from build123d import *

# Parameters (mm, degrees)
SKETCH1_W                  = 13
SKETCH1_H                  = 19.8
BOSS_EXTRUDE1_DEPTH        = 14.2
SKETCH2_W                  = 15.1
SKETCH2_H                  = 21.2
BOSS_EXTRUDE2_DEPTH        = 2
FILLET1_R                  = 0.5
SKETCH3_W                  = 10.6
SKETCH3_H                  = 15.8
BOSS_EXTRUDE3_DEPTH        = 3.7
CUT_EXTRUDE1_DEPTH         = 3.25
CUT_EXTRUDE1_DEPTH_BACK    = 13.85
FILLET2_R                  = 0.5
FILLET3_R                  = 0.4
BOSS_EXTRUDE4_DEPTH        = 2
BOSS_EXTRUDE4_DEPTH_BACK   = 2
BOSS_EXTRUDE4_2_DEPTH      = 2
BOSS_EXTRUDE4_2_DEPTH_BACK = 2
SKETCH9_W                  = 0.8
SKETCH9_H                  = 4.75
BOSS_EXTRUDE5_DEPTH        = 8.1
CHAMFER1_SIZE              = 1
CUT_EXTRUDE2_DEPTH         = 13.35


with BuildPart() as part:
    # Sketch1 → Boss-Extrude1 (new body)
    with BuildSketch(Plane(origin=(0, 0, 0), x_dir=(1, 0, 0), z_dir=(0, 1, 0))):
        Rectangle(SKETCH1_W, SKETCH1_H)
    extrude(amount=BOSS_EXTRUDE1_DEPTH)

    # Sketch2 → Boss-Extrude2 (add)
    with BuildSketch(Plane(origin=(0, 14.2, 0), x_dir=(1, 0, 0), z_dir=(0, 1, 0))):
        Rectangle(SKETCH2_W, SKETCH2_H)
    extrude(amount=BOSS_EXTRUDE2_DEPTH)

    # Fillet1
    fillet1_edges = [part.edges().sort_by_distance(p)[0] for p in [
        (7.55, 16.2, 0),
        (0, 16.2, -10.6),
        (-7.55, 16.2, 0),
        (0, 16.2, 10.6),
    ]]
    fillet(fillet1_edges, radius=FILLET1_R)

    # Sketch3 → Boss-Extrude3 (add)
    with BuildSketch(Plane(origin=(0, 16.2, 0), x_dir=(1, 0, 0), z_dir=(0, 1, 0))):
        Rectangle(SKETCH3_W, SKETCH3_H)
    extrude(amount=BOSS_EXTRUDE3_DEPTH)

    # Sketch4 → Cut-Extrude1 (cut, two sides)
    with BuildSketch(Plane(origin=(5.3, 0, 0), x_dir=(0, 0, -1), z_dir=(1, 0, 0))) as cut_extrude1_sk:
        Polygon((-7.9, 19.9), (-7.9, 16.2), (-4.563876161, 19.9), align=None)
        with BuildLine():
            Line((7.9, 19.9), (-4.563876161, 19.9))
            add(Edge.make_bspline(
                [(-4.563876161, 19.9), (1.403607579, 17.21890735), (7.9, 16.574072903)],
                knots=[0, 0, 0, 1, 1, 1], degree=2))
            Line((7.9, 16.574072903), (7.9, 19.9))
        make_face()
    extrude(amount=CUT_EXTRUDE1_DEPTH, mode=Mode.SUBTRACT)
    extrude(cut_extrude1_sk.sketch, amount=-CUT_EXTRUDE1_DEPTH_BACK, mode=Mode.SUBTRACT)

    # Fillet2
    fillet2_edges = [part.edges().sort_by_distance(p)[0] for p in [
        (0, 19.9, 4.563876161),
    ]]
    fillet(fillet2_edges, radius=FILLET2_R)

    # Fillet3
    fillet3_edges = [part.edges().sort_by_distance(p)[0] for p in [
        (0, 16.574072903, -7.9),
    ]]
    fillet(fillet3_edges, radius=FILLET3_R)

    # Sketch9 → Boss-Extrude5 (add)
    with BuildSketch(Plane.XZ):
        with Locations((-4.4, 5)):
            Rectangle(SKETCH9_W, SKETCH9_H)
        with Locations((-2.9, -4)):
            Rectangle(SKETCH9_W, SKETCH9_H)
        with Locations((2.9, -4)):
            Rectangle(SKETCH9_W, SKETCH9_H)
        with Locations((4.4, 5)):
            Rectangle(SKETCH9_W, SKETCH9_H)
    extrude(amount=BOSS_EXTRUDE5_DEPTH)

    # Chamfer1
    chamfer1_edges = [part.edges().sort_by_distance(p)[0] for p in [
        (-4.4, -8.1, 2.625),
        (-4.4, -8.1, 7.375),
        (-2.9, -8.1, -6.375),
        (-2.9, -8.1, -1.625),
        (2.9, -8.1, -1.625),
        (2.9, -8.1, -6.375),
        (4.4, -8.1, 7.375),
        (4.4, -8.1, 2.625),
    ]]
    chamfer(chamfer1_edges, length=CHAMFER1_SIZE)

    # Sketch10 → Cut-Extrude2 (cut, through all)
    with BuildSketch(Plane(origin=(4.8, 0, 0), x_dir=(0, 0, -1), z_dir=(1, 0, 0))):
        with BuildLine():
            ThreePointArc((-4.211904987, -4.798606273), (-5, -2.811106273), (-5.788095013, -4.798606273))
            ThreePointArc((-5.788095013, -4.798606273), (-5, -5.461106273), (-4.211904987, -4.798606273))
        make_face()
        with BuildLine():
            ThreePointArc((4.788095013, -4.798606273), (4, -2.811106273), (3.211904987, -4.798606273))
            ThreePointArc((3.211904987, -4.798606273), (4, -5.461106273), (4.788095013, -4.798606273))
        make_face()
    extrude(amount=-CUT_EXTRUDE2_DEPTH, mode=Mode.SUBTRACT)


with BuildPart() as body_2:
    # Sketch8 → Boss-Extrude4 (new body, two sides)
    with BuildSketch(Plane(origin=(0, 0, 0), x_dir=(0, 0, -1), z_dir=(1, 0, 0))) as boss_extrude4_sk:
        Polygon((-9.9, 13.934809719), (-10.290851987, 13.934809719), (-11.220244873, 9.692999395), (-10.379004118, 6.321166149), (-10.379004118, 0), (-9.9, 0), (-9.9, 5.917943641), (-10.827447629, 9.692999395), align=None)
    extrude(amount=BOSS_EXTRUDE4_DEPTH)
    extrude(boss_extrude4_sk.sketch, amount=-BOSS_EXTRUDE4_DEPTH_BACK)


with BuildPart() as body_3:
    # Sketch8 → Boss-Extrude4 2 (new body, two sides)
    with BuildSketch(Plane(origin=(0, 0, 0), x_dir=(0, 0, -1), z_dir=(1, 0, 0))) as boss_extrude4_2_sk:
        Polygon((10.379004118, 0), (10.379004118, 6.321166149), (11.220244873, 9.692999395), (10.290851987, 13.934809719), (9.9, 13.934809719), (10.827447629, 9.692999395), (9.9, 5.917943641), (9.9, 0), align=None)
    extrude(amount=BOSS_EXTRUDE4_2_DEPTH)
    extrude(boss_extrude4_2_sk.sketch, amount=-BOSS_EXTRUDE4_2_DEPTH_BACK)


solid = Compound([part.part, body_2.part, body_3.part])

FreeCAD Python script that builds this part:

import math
import FreeCAD as App
import Part
import Sketcher

V = App.Vector
Q = App.Units.Quantity


def edges_at(feature, points):
    """Names of the edges that pass closest to the given points."""
    edges = feature.Shape.Edges
    near = lambda p: min(range(len(edges)), key=lambda i: edges[i].distToShape(Part.Vertex(*p))[0])
    return sorted({f"Edge{near(p) + 1}" for p in points})

doc = App.newDocument("Part")
body = doc.addObject("PartDesign::Body", "Body")

# Sketch on XZ plane
sketch1 = body.newObject("Sketcher::SketchObject", "Sketch")
sketch1.AttachmentSupport = (doc.getObject("XZ_Plane"), [""])
sketch1.MapMode = "FlatFace"
sketch1.addGeometry([
    Part.LineSegment(V(-6, -10, 0), V(-6, 10, 0)),
    Part.LineSegment(V(-6, 10, 0), V(6, 10, 0)),
    Part.LineSegment(V(6, 10, 0), V(6, -10, 0)),
    Part.LineSegment(V(6, -10, 0), V(-6, -10, 0)),
], False)
sketch1.addConstraint([
    Sketcher.Constraint("Coincident", 0, 2, 1, 1),
    Sketcher.Constraint("Coincident", 1, 2, 2, 1),
    Sketcher.Constraint("Coincident", 2, 2, 3, 1),
    Sketcher.Constraint("Coincident", 3, 2, 0, 1),
    Sketcher.Constraint("Vertical", 0),
    Sketcher.Constraint("Horizontal", 1),
    Sketcher.Constraint("Vertical", 2),
    Sketcher.Constraint("Horizontal", 3),
    Sketcher.Constraint("Symmetric", 0, 2, 2, 2, -1, 1),
    Sketcher.Constraint("DistanceX", 1, 1, 1, 2, Q("13 mm")),
    Sketcher.Constraint("DistanceY", 0, 1, 0, 2, Q("19.8 mm")),
])
pad1 = body.newObject("PartDesign::Pad", "Pad")
pad1.Profile = sketch1
pad1.Length = 14.2
pad1.Reversed = True

# Sketch on XZ plane
sketch2 = body.newObject("Sketcher::SketchObject", "Sketch001")
sketch2.AttachmentSupport = (doc.getObject("XZ_Plane"), [""])
sketch2.MapMode = "FlatFace"
sketch2.AttachmentOffset = App.Placement(V(0, 0, -14.2), App.Rotation())
sketch2.addGeometry([
    Part.LineSegment(V(-8, -11, 0), V(-8, 11, 0)),
    Part.LineSegment(V(-8, 11, 0), V(8, 11, 0)),
    Part.LineSegment(V(8, 11, 0), V(8, -11, 0)),
    Part.LineSegment(V(8, -11, 0), V(-8, -11, 0)),
], False)
sketch2.addConstraint([
    Sketcher.Constraint("Coincident", 0, 2, 1, 1),
    Sketcher.Constraint("Coincident", 1, 2, 2, 1),
    Sketcher.Constraint("Coincident", 2, 2, 3, 1),
    Sketcher.Constraint("Coincident", 3, 2, 0, 1),
    Sketcher.Constraint("Vertical", 0),
    Sketcher.Constraint("Horizontal", 1),
    Sketcher.Constraint("Vertical", 2),
    Sketcher.Constraint("Horizontal", 3),
    Sketcher.Constraint("Symmetric", 0, 2, 2, 2, -1, 1),
    Sketcher.Constraint("DistanceX", 1, 1, 1, 2, Q("15.1 mm")),
    Sketcher.Constraint("DistanceY", 0, 1, 0, 2, Q("21.2 mm")),
])
pad2 = body.newObject("PartDesign::Pad", "Pad001")
pad2.Profile = sketch2
pad2.Length = 2
pad2.Reversed = True
doc.recompute()

fillet = body.newObject("PartDesign::Fillet", "Fillet")
fillet.Base = (pad2, edges_at(pad2, [
    (7.55, 16.2, 0),
    (0, 16.2, -10.6),
    (-7.55, 16.2, 0),
    (0, 16.2, 10.6),
]))
fillet.Radius = 0.5

# Sketch on XZ plane
sketch3 = body.newObject("Sketcher::SketchObject", "Sketch002")
sketch3.AttachmentSupport = (doc.getObject("XZ_Plane"), [""])
sketch3.MapMode = "FlatFace"
sketch3.AttachmentOffset = App.Placement(V(0, 0, -16.2), App.Rotation())
sketch3.addGeometry([
    Part.LineSegment(V(-5, -8, 0), V(-5, 8, 0)),
    Part.LineSegment(V(-5, 8, 0), V(5, 8, 0)),
    Part.LineSegment(V(5, 8, 0), V(5, -8, 0)),
    Part.LineSegment(V(5, -8, 0), V(-5, -8, 0)),
], False)
sketch3.addConstraint([
    Sketcher.Constraint("Coincident", 0, 2, 1, 1),
    Sketcher.Constraint("Coincident", 1, 2, 2, 1),
    Sketcher.Constraint("Coincident", 2, 2, 3, 1),
    Sketcher.Constraint("Coincident", 3, 2, 0, 1),
    Sketcher.Constraint("Vertical", 0),
    Sketcher.Constraint("Horizontal", 1),
    Sketcher.Constraint("Vertical", 2),
    Sketcher.Constraint("Horizontal", 3),
    Sketcher.Constraint("Symmetric", 0, 2, 2, 2, -1, 1),
    Sketcher.Constraint("DistanceX", 1, 1, 1, 2, Q("10.6 mm")),
    Sketcher.Constraint("DistanceY", 0, 1, 0, 2, Q("15.8 mm")),
])
pad3 = body.newObject("PartDesign::Pad", "Pad002")
pad3.Profile = sketch3
pad3.Length = 3.7
pad3.Reversed = True

# Sketch on YZ plane
sketch4 = body.newObject("Sketcher::SketchObject", "Sketch003")
sketch4.AttachmentSupport = (doc.getObject("YZ_Plane"), [""])
sketch4.MapMode = "FlatFace"
sketch4.AttachmentOffset = App.Placement(V(0, 0, 5.3), App.Rotation())
sketch4.addGeometry([
    Part.LineSegment(V(19.9, 7.9, 0), V(16.2, 7.9, 0)),  # 0
    Part.LineSegment(V(16.2, 7.9, 0), V(19.9, 4.563876, 0)),  # 1
    Part.LineSegment(V(19.9, 4.563876, 0), V(19.9, 7.9, 0)),  # 2
    Part.LineSegment(V(19.9, -7.9, 0), V(19.9, 4.563876, 0)),  # 3
    Part.BSplineCurve([V(19.9, 4.563876, 0), V(17.218907, -1.403608, 0), V(16.574073, -7.9, 0)], [3, 3], [0, 1], False, 2, [1, 1, 1], False),  # 4
    Part.LineSegment(V(16.574073, -7.9, 0), V(19.9, -7.9, 0)),  # 5
], False)
sketch4.addConstraint([
    Sketcher.Constraint("Block", 4),
    Sketcher.Constraint("Coincident", 0, 2, 1, 1),
    Sketcher.Constraint("Coincident", 1, 2, 2, 1),
    Sketcher.Constraint("Coincident", 2, 2, 0, 1),
    Sketcher.Constraint("Coincident", 3, 2, 4, 1),
    Sketcher.Constraint("Coincident", 4, 2, 5, 1),
    Sketcher.Constraint("Coincident", 5, 2, 3, 1),
    Sketcher.Constraint("Horizontal", 0),
    Sketcher.Constraint("Vertical", 2),
    Sketcher.Constraint("Vertical", 3),
    Sketcher.Constraint("Horizontal", 5),
    Sketcher.Constraint("Coincident", 3, 2, 1, 2),
    Sketcher.Constraint("DistanceX", 0, 2, 0, 1, Q("3.7 mm")),
    Sketcher.Constraint("DistanceY", -1, 1, 0, 2, Q("7.9 mm")),
])
pocket1 = body.newObject("PartDesign::Pocket", "Pocket")
pocket1.Profile = sketch4
pocket1.Type = "ThroughAll"
pocket1.Midplane = True
doc.recompute()

fillet2 = body.newObject("PartDesign::Fillet", "Fillet001")
fillet2.Base = (pocket1, edges_at(pocket1, [(0, 19.9, 4.564)]))
fillet2.Radius = 0.5
doc.recompute()

fillet3 = body.newObject("PartDesign::Fillet", "Fillet002")
fillet3.Base = (fillet2, edges_at(fillet2, [(0, 16.574, -7.9)]))
fillet3.Radius = 0.4

# Sketch on XZ plane
sketch5 = body.newObject("Sketcher::SketchObject", "Sketch004")
sketch5.AttachmentSupport = (doc.getObject("XZ_Plane"), [""])
sketch5.MapMode = "FlatFace"
sketch5.addGeometry([
    Part.LineSegment(V(-4.8, 7.4, 0), V(-4.8, 2.6, 0)),  # 0
    Part.LineSegment(V(-4.8, 2.6, 0), V(-4, 2.6, 0)),  # 1
    Part.LineSegment(V(-4, 2.6, 0), V(-4, 7.4, 0)),  # 2
    Part.LineSegment(V(-4, 7.4, 0), V(-4.8, 7.4, 0)),  # 3
    Part.LineSegment(V(-3.3, -1.6, 0), V(-3.3, -6.4, 0)),  # 4
    Part.LineSegment(V(-3.3, -6.4, 0), V(-2.5, -6.4, 0)),  # 5
    Part.LineSegment(V(-2.5, -6.4, 0), V(-2.5, -1.6, 0)),  # 6
    Part.LineSegment(V(-2.5, -1.6, 0), V(-3.3, -1.6, 0)),  # 7
    Part.LineSegment(V(2.5, -1.6, 0), V(2.5, -6.4, 0)),  # 8
    Part.LineSegment(V(2.5, -6.4, 0), V(3.3, -6.4, 0)),  # 9
    Part.LineSegment(V(3.3, -6.4, 0), V(3.3, -1.6, 0)),  # 10
    Part.LineSegment(V(3.3, -1.6, 0), V(2.5, -1.6, 0)),  # 11
    Part.LineSegment(V(4, 7.4, 0), V(4, 2.6, 0)),  # 12
    Part.LineSegment(V(4, 2.6, 0), V(4.8, 2.6, 0)),  # 13
    Part.LineSegment(V(4.8, 2.6, 0), V(4.8, 7.4, 0)),  # 14
    Part.LineSegment(V(4.8, 7.4, 0), V(4, 7.4, 0)),  # 15
], False)
sketch5.addConstraint([
    Sketcher.Constraint("Coincident", 0, 2, 1, 1),
    Sketcher.Constraint("Coincident", 1, 2, 2, 1),
    Sketcher.Constraint("Coincident", 2, 2, 3, 1),
    Sketcher.Constraint("Coincident", 3, 2, 0, 1),
    Sketcher.Constraint("Coincident", 4, 2, 5, 1),
    Sketcher.Constraint("Coincident", 5, 2, 6, 1),
    Sketcher.Constraint("Coincident", 6, 2, 7, 1),
    Sketcher.Constraint("Coincident", 7, 2, 4, 1),
    Sketcher.Constraint("Coincident", 8, 2, 9, 1),
    Sketcher.Constraint("Coincident", 9, 2, 10, 1),
    Sketcher.Constraint("Coincident", 10, 2, 11, 1),
    Sketcher.Constraint("Coincident", 11, 2, 8, 1),
    Sketcher.Constraint("Coincident", 12, 2, 13, 1),
    Sketcher.Constraint("Coincident", 13, 2, 14, 1),
    Sketcher.Constraint("Coincident", 14, 2, 15, 1),
    Sketcher.Constraint("Coincident", 15, 2, 12, 1),
    Sketcher.Constraint("Vertical", 0),
    Sketcher.Constraint("Horizontal", 1),
    Sketcher.Constraint("Vertical", 2),
    Sketcher.Constraint("Horizontal", 3),
    Sketcher.Constraint("Vertical", 4),
    Sketcher.Constraint("Horizontal", 5),
    Sketcher.Constraint("Vertical", 6),
    Sketcher.Constraint("Horizontal", 7),
    Sketcher.Constraint("Vertical", 8),
    Sketcher.Constraint("Horizontal", 9),
    Sketcher.Constraint("Vertical", 10),
    Sketcher.Constraint("Horizontal", 11),
    Sketcher.Constraint("Vertical", 12),
    Sketcher.Constraint("Horizontal", 13),
    Sketcher.Constraint("Vertical", 14),
    Sketcher.Constraint("Horizontal", 15),
    Sketcher.Constraint("Symmetric", 5, 2, 8, 2, -2),
    Sketcher.Constraint("Symmetric", 7, 2, 10, 2, -2),
    Sketcher.Constraint("Symmetric", 1, 2, 12, 2, -2),
    Sketcher.Constraint("Symmetric", 3, 2, 14, 2, -2),
    Sketcher.Constraint("Equal", 3, 5),
    Sketcher.Constraint("Equal", 2, 4),
    Sketcher.Constraint("DistanceX", 1, 1, 1, 2, Q("0.8 mm")),
    Sketcher.Constraint("DistanceX", 1, 2, -1, 1, Q("4 mm")),
    Sketcher.Constraint("DistanceY", 4, 2, 1, 2, Q("9 mm")),
    Sketcher.Constraint("DistanceX", 5, 2, 8, 2, Q("5 mm")),
    Sketcher.Constraint("DistanceY", 0, 2, 0, 1, Q("4.75 mm")),
    Sketcher.Constraint("DistanceY", -1, 1, 0, 2, Q("2.625 mm")),
])
pad4 = body.newObject("PartDesign::Pad", "Pad003")
pad4.Profile = sketch5
pad4.Length = 8.1
doc.recompute()

chamfer = body.newObject("PartDesign::Chamfer", "Chamfer")
chamfer.Base = (pad4, edges_at(pad4, [
    (-4.4, -8.1, 2.625),
    (-4.4, -8.1, 7.375),
    (-2.9, -8.1, -6.375),
    (-2.9, -8.1, -1.625),
    (2.9, -8.1, -1.625),
    (2.9, -8.1, -6.375),
    (4.4, -8.1, 7.375),
    (4.4, -8.1, 2.625),
]))
chamfer.Size = 1

# Sketch on YZ plane
sketch6 = body.newObject("Sketcher::SketchObject", "Sketch005")
sketch6.AttachmentSupport = (doc.getObject("YZ_Plane"), [""])
sketch6.MapMode = "FlatFace"
sketch6.AttachmentOffset = App.Placement(V(0, 0, 4.8), App.Rotation())
sketch6.addGeometry([
    Part.ArcOfCircle(Part.Circle(V(-4, 5, 0), V(0, 0, 1), 1.1), math.radians(-137), math.radians(137)),
    Part.ArcOfCircle(Part.Circle(V(-4.7, 5, 0), V(0, 0, 1), 0.8), math.radians(100), math.radians(260)),
    Part.ArcOfCircle(Part.Circle(V(-4, -4, 0), V(0, 0, 1), 1.1), math.radians(-137), math.radians(137)),
    Part.ArcOfCircle(Part.Circle(V(-4.7, -4, 0), V(0, 0, 1), 0.8), math.radians(100), math.radians(260)),
], False)
sketch6.addConstraint([
    Sketcher.Constraint("Coincident", 0, 1, 1, 2),
    Sketcher.Constraint("Coincident", 1, 1, 0, 2),
    Sketcher.Constraint("Coincident", 2, 1, 3, 2),
    Sketcher.Constraint("Coincident", 3, 1, 2, 2),
    Sketcher.Constraint("Equal", 0, 2),
    Sketcher.Constraint("Equal", 1, 3),
    Sketcher.Constraint("Horizontal", 0, 3, 1, 3),
    Sketcher.Constraint("Horizontal", 2, 3, 3, 3),
    Sketcher.Constraint("Vertical", 0, 3, 2, 3),
    Sketcher.Constraint("Vertical", 1, 3, 3, 3),
    Sketcher.Constraint("Radius", 1, Q("0.8 mm")),
    Sketcher.Constraint("Radius", 0, Q("1.15 mm")),
    Sketcher.Constraint("DistanceY", -1, 1, 0, 3, Q("5 mm")),
    Sketcher.Constraint("DistanceY", 2, 3, -1, 1, Q("4 mm")),
    Sketcher.Constraint("DistanceX", 1, 3, 0, 3, Q("0.7 mm")),
    Sketcher.Constraint("DistanceX", 0, 3, -1, 1, Q("3.961106 mm")),
])
pocket2 = body.newObject("PartDesign::Pocket", "Pocket001")
pocket2.Profile = sketch6
pocket2.Type = "ThroughAll"
body2 = doc.addObject("PartDesign::Body", "Body001")

# Sketch on YZ plane
sketch7 = body2.newObject("Sketcher::SketchObject", "Sketch006")
sketch7.AttachmentSupport = (doc.getObject("YZ_Plane001"), [""])
sketch7.MapMode = "FlatFace"
sketch7.addGeometry([
    Part.LineSegment(V(13.93, 9.9, 0), V(13.93, 10.29, 0)),  # 0
    Part.LineSegment(V(13.93, 10.29, 0), V(9.69, 11.22, 0)),  # 1
    Part.LineSegment(V(9.69, 11.22, 0), V(6.32, 10.38, 0)),  # 2
    Part.LineSegment(V(6.32, 10.38, 0), V(0, 10.38, 0)),  # 3
    Part.LineSegment(V(0, 10.38, 0), V(0, 9.9, 0)),  # 4
    Part.LineSegment(V(0, 9.9, 0), V(5.92, 9.9, 0)),  # 5
    Part.LineSegment(V(5.92, 9.9, 0), V(9.69, 10.83, 0)),  # 6
    Part.LineSegment(V(9.69, 10.83, 0), V(13.93, 9.9, 0)),  # 7
], False)
sketch7.addConstraint([
    Sketcher.Constraint("Coincident", 0, 2, 1, 1),
    Sketcher.Constraint("Coincident", 1, 2, 2, 1),
    Sketcher.Constraint("Coincident", 2, 2, 3, 1),
    Sketcher.Constraint("Coincident", 3, 2, 4, 1),
    Sketcher.Constraint("Coincident", 4, 2, 5, 1),
    Sketcher.Constraint("Coincident", 5, 2, 6, 1),
    Sketcher.Constraint("Coincident", 6, 2, 7, 1),
    Sketcher.Constraint("Coincident", 7, 2, 0, 1),
    Sketcher.Constraint("Vertical", 0),
    Sketcher.Constraint("Horizontal", 3),
    Sketcher.Constraint("Vertical", 4),
    Sketcher.Constraint("Horizontal", 5),
    Sketcher.Constraint("PointOnObject", 3, 2, -2),
    Sketcher.Constraint("Horizontal", 5, 2, 7, 2),
    Sketcher.Constraint("Vertical", 1, 2, 6, 2),
    Sketcher.Constraint("DistanceY", -1, 1, 4, 2, Q("9.9 mm")),
    Sketcher.Constraint("DistanceX", -1, 1, 1, 2, Q("9.692999 mm")),
    Sketcher.Constraint("DistanceY", 0, 1, 0, 2, Q("0.390852 mm")),
    Sketcher.Constraint("Distance", 2, Q("3.47519 mm")),
    Sketcher.Constraint("DistanceX", 3, 2, 3, 1, Q("6.321166 mm")),
    Sketcher.Constraint("DistanceX", 5, 1, 5, 2, Q("5.917944 mm")),
    Sketcher.Constraint("DistanceY", 4, 2, 4, 1, Q("0.479004 mm")),
    Sketcher.Constraint("DistanceX", -1, 1, 0, 2, Q("13.93481 mm")),
    Sketcher.Constraint("Distance", 6, Q("3.887313 mm")),
])
pad5 = body2.newObject("PartDesign::Pad", "Pad004")
pad5.Profile = sketch7
pad5.Type = "TwoLengths"
pad5.Length = 2
pad5.Length2 = 2
body3 = doc.addObject("PartDesign::Body", "Body002")

# Sketch on YZ plane
sketch8 = body3.newObject("Sketcher::SketchObject", "Sketch007")
sketch8.AttachmentSupport = (doc.getObject("YZ_Plane002"), [""])
sketch8.MapMode = "FlatFace"
sketch8.addGeometry([
    Part.LineSegment(V(0, -10.38, 0), V(6.32, -10.38, 0)),  # 0
    Part.LineSegment(V(6.32, -10.38, 0), V(9.69, -11.22, 0)),  # 1
    Part.LineSegment(V(9.69, -11.22, 0), V(13.93, -10.29, 0)),  # 2
    Part.LineSegment(V(13.93, -10.29, 0), V(13.93, -9.9, 0)),  # 3
    Part.LineSegment(V(13.93, -9.9, 0), V(9.69, -10.83, 0)),  # 4
    Part.LineSegment(V(9.69, -10.83, 0), V(5.92, -9.9, 0)),  # 5
    Part.LineSegment(V(5.92, -9.9, 0), V(0, -9.9, 0)),  # 6
    Part.LineSegment(V(0, -9.9, 0), V(0, -10.38, 0)),  # 7
], False)
sketch8.addConstraint([
    Sketcher.Constraint("Coincident", 0, 2, 1, 1),
    Sketcher.Constraint("Coincident", 1, 2, 2, 1),
    Sketcher.Constraint("Coincident", 2, 2, 3, 1),
    Sketcher.Constraint("Coincident", 3, 2, 4, 1),
    Sketcher.Constraint("Coincident", 4, 2, 5, 1),
    Sketcher.Constraint("Coincident", 5, 2, 6, 1),
    Sketcher.Constraint("Coincident", 6, 2, 7, 1),
    Sketcher.Constraint("Coincident", 7, 2, 0, 1),
    Sketcher.Constraint("Horizontal", 0),
    Sketcher.Constraint("Vertical", 3),
    Sketcher.Constraint("Horizontal", 6),
    Sketcher.Constraint("Vertical", 7),
    Sketcher.Constraint("PointOnObject", 6, 2, -2),
    Sketcher.Constraint("Horizontal", 3, 2, 5, 2),
    Sketcher.Constraint("Vertical", 1, 2, 4, 2),
    Sketcher.Constraint("DistanceY", 3, 2, -1, 1, Q("9.9 mm")),
    Sketcher.Constraint("DistanceX", -1, 1, 1, 2, Q("9.692999 mm")),
    Sketcher.Constraint("DistanceY", 3, 1, 3, 2, Q("0.390852 mm")),
    Sketcher.Constraint("Distance", 1, Q("3.47519 mm")),
    Sketcher.Constraint("DistanceX", 0, 1, 0, 2, Q("6.321166 mm")),
    Sketcher.Constraint("DistanceX", 6, 2, 6, 1, Q("5.917944 mm")),
    Sketcher.Constraint("DistanceY", 7, 2, 7, 1, Q("0.479004 mm")),
    Sketcher.Constraint("DistanceX", -1, 1, 2, 2, Q("13.93481 mm")),
    Sketcher.Constraint("Distance", 4, Q("4.342017 mm")),
])
pad6 = body3.newObject("PartDesign::Pad", "Pad005")
pad6.Profile = sketch8
pad6.Type = "TwoLengths"
pad6.Length = 2
pad6.Length2 = 2

doc.recompute()
